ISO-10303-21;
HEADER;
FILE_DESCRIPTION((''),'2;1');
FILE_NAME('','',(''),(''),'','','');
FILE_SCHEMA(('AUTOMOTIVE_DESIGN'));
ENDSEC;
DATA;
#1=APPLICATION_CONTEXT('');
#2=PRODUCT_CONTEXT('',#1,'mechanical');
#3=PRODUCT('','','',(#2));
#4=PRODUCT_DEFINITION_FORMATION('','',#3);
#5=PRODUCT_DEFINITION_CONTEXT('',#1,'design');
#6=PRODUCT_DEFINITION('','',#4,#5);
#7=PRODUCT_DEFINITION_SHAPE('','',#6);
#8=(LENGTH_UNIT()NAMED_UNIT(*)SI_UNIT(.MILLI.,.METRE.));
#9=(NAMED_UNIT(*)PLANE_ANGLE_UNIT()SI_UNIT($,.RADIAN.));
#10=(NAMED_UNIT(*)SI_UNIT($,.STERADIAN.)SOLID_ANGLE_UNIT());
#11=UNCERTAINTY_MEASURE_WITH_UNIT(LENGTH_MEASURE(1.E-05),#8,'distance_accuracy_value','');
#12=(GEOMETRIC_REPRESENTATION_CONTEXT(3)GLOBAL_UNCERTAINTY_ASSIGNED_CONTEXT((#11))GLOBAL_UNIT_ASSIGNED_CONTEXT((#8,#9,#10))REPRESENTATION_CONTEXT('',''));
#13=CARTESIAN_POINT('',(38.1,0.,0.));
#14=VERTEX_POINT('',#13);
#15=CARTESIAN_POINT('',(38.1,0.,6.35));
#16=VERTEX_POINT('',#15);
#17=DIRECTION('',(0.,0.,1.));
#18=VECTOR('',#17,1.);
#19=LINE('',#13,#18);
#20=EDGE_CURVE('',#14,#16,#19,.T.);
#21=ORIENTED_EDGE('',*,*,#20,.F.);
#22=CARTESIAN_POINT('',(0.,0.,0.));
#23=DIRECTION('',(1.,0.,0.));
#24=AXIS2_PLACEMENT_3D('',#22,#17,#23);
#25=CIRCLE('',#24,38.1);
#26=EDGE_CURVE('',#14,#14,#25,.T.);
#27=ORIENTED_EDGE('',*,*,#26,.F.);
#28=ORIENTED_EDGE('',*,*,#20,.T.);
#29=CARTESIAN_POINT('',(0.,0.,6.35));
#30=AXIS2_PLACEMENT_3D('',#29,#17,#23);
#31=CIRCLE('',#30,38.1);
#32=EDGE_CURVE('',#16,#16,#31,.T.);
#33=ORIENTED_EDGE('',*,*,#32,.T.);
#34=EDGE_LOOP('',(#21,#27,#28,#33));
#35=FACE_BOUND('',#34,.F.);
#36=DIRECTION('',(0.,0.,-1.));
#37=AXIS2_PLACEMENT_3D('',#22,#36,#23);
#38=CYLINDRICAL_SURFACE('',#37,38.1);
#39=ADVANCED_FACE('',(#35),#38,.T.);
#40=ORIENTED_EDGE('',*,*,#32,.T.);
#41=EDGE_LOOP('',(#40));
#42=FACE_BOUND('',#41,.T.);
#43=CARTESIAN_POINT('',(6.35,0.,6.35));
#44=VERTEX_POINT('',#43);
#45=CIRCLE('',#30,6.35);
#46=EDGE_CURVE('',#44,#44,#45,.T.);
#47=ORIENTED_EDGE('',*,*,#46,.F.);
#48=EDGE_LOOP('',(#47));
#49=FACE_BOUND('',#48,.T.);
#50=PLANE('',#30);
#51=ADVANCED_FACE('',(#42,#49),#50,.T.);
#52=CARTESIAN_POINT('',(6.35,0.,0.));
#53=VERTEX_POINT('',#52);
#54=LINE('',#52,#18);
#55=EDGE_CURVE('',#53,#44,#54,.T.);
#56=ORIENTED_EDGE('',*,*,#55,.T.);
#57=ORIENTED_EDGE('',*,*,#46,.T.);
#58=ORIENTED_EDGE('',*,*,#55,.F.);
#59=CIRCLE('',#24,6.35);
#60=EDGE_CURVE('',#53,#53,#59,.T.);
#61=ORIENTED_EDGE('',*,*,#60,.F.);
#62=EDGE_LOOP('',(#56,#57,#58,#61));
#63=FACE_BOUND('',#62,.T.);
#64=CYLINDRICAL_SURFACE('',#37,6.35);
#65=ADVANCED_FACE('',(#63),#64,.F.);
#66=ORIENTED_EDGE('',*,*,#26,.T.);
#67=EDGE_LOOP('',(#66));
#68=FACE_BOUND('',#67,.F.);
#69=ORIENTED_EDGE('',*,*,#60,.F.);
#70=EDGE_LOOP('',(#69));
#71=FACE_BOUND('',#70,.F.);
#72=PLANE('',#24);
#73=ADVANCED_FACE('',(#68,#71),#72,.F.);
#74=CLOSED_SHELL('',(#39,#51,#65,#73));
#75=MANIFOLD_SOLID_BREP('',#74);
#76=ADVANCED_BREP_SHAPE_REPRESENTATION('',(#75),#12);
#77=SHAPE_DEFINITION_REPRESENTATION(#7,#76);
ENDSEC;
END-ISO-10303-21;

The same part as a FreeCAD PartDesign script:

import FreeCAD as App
import Part
import Sketcher
Q = App.Units.Quantity

doc = App.newDocument("Part")
body = doc.addObject("PartDesign::Body", "Body")

# Sketch on XY plane
sketch1 = body.newObject("Sketcher::SketchObject", "Sketch")
sketch1.AttachmentSupport = (doc.getObject("XY_Plane"), [""])
sketch1.MapMode = "FlatFace"
sketch1.addGeometry([
    Part.Circle(App.Vector(0, 0, 0), App.Vector(0, 0, 1), 38),
    Part.Circle(App.Vector(0, 0, 0), App.Vector(0, 0, 1), 6),
], False)
sketch1.addConstraint([
    Sketcher.Constraint("Coincident", 0, 3, -1, 1),
    Sketcher.Constraint("Coincident", 1, 3, -1, 1),
    Sketcher.Constraint("Diameter", 0, Q("3 in")),
    Sketcher.Constraint("Diameter", 1, Q("0.5 in")),
])
pad1 = body.newObject("PartDesign::Pad", "Pad")
pad1.Profile = sketch1
pad1.Length = Q("0.25 in")

doc.recompute()
